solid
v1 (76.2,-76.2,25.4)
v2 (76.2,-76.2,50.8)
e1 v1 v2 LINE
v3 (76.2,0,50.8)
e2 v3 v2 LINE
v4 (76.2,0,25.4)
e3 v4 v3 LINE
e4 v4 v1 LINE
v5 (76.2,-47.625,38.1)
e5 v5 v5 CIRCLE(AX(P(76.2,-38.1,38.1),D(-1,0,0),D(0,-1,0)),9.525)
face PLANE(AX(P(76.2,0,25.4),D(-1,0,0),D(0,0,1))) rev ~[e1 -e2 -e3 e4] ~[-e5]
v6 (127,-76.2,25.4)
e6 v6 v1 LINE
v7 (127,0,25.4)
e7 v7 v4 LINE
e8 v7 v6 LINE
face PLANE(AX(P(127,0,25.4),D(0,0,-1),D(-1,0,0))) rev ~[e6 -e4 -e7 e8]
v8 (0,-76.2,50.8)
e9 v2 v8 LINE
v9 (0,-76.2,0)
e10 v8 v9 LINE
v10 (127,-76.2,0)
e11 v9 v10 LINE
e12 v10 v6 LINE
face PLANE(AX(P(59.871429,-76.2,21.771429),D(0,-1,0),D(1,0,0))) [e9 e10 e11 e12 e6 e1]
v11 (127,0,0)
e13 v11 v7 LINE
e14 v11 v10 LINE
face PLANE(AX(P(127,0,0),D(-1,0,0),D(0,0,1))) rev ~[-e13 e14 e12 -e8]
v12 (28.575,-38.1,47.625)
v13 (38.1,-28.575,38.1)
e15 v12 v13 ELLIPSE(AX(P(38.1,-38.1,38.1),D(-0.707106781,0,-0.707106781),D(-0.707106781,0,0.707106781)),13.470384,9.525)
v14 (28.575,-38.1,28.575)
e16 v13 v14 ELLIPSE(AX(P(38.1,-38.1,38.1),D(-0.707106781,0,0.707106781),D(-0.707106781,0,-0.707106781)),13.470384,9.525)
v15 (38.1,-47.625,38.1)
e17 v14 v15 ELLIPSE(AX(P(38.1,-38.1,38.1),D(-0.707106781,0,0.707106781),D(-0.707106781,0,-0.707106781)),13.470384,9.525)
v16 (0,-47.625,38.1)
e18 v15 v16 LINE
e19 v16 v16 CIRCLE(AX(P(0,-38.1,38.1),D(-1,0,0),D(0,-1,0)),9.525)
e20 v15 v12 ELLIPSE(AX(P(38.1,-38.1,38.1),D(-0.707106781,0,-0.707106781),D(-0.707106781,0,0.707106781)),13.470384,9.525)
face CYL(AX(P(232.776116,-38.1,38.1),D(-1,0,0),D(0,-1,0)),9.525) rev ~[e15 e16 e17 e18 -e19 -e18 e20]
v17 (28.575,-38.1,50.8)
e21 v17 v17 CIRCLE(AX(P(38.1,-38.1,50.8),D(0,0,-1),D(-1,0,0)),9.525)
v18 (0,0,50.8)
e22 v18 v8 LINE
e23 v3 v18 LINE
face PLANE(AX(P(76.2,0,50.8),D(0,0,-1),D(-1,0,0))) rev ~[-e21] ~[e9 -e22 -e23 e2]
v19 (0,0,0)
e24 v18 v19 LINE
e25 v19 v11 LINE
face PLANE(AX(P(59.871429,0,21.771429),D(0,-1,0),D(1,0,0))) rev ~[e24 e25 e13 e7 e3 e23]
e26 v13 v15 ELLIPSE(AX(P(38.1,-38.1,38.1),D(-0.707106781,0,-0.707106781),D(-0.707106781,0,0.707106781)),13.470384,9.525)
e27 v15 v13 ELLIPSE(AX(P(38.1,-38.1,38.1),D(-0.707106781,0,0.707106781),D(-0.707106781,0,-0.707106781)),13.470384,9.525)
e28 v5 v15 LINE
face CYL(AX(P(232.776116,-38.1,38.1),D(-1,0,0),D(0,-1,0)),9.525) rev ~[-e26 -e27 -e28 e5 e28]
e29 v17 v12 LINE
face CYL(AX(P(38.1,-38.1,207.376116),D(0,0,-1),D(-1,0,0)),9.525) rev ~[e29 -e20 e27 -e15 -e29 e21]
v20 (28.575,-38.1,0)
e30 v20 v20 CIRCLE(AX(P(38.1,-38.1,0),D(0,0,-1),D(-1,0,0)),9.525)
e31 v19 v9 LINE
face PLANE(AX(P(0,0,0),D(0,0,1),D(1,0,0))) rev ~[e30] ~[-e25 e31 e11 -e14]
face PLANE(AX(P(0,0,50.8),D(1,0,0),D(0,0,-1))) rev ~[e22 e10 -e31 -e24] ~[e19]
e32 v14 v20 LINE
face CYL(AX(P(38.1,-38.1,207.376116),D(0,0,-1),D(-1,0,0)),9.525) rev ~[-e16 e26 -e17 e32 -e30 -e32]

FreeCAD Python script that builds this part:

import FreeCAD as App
import Part
import Sketcher

V = App.Vector
Q = App.Units.Quantity


def add_polygon(sketch, points):
    """Adds a closed chain of lines whose ends are joined by coincident constraints."""
    first, n = sketch.GeometryCount, len(points)
    for a, b in zip(points, points[1:] + points[:1]):
        sketch.addGeometry(Part.LineSegment(App.Vector(*a, 0), App.Vector(*b, 0)), False)
    for i in range(n):
        sketch.addConstraint(Sketcher.Constraint("Coincident", first + i, 2, first + (i + 1) % n, 1))

doc = App.newDocument("Part")
body = doc.addObject("PartDesign::Body", "Body")

# Sketch on XZ plane
sketch1 = body.newObject("Sketcher::SketchObject", "Sketch")
sketch1.AttachmentSupport = (doc.getObject("XZ_Plane"), [""])
sketch1.MapMode = "FlatFace"
add_polygon(sketch1, [(0, 50.8), (0, 0), (127, 0), (127, 25.4), (76.2, 25.4), (76.2, 50.8)])  # lines 0-5
sketch1.addConstraint(Sketcher.Constraint("Vertical", 0))
sketch1.addConstraint(Sketcher.Constraint("Horizontal", 1))
sketch1.addConstraint(Sketcher.Constraint("Vertical", 2))
sketch1.addConstraint(Sketcher.Constraint("Horizontal", 3))
sketch1.addConstraint(Sketcher.Constraint("Vertical", 4))
sketch1.addConstraint(Sketcher.Constraint("Horizontal", 5))
sketch1.addConstraint(Sketcher.Constraint("Coincident", 0, 2, -1, 1))
sketch1.addConstraint(Sketcher.Constraint("Equal", 3, 0))
sketch1.addConstraint(Sketcher.Constraint("Equal", 2, 4))
sketch1.addConstraint(Sketcher.Constraint("DistanceX", 1, 1, 1, 2, Q("5 in")))
sketch1.addConstraint(Sketcher.Constraint("DistanceX", 3, 2, 3, 1, Q("2 in")))
pad1 = body.newObject("PartDesign::Pad", "Pad")
pad1.Profile = sketch1
pad1.Length = Q("3 in")

# Sketch on YZ plane
sketch2 = body.newObject("Sketcher::SketchObject", "Sketch001")
sketch2.AttachmentSupport = (doc.getObject("YZ_Plane"), [""])
sketch2.MapMode = "FlatFace"
sketch2.AttachmentOffset = App.Placement(V(0, 0, 3 * 25.4), App.Rotation())
sketch2.addGeometry(Part.Circle(V(-38.1, 38.1, 0), V(0, 0, 1), 9.525), False)
sketch2.addConstraint(Sketcher.Constraint("Diameter", 0, Q("0.75 in")))
sketch2.addConstraint(Sketcher.Constraint("DistanceX", 0, 3, -1, 1, Q("1.5 in")))
sketch2.addConstraint(Sketcher.Constraint("DistanceY", -1, 1, 0, 3, Q("1.5 in")))
doc.recompute()
hole = body.newObject("PartDesign::Hole", "Hole")
hole.Profile = sketch2
hole.ThreadType = "None"
hole.Diameter = Q("0.75 in")
hole.DepthType = "ThroughAll"

# Sketch on XY plane
sketch3 = body.newObject("Sketcher::SketchObject", "Sketch002")
sketch3.AttachmentSupport = (doc.getObject("XY_Plane"), [""])
sketch3.MapMode = "FlatFace"
sketch3.AttachmentOffset = App.Placement(V(0, 0, 2 * 25.4), App.Rotation())
sketch3.addGeometry(Part.Circle(V(38.1, -38.1, 0), V(0, 0, 1), 9.525), False)
sketch3.addConstraint(Sketcher.Constraint("Diameter", 0, Q("0.75 in")))
sketch3.addConstraint(Sketcher.Constraint("DistanceX", -1, 1, 0, 3, Q("1.5 in")))
sketch3.addConstraint(Sketcher.Constraint("DistanceY", 0, 3, -1, 1, Q("1.5 in")))
doc.recompute()
hole2 = body.newObject("PartDesign::Hole", "Hole001")
hole2.Profile = sketch3
hole2.ThreadType = "None"
hole2.Diameter = Q("0.75 in")
hole2.DepthType = "ThroughAll"

doc.recompute()
